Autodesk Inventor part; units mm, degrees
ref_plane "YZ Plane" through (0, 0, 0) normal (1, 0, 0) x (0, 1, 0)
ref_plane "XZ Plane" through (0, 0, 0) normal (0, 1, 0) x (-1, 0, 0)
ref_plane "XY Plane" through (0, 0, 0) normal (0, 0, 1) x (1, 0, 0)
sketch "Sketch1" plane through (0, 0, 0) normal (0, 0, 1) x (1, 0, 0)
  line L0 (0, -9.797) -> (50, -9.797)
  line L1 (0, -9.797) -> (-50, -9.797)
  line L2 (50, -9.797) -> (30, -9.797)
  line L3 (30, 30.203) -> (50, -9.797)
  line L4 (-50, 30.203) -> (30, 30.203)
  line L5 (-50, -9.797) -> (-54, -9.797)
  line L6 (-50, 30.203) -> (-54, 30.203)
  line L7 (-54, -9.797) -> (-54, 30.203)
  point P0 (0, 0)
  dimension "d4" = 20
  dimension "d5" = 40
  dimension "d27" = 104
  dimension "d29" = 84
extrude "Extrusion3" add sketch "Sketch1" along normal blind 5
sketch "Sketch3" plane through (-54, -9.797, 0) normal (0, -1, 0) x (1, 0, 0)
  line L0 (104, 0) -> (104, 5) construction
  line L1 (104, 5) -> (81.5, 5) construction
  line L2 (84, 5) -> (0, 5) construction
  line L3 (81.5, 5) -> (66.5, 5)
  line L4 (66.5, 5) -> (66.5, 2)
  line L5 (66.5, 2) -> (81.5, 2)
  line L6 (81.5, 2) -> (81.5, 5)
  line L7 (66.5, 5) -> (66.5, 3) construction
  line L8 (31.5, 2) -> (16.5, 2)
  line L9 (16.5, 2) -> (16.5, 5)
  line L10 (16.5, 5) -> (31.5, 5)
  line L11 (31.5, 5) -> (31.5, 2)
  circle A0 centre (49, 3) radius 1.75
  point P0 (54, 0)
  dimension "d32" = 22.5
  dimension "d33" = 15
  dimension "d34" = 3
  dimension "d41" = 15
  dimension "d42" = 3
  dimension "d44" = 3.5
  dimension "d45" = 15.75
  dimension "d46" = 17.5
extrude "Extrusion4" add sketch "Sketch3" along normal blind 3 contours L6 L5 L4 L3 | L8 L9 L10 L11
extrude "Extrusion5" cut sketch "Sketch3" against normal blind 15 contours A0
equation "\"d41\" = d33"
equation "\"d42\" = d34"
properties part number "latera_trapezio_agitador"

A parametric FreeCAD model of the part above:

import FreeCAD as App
import Part
import Sketcher

doc = App.newDocument("Part")
body = doc.addObject("PartDesign::Body", "Body")

# Sketch on XY plane
sketch1 = body.newObject("Sketcher::SketchObject", "Sketch")
sketch1.AttachmentSupport = (doc.getObject("XY_Plane"), [""])
sketch1.MapMode = "FlatFace"
sketch1.addGeometry(Part.LineSegment(App.Vector(-54, -10, 0), App.Vector(50, -10, 0)), False)
sketch1.addGeometry(Part.LineSegment(App.Vector(50, -10, 0), App.Vector(30, 30, 0)), False)
sketch1.addGeometry(Part.LineSegment(App.Vector(30, 30, 0), App.Vector(-54, 30, 0)), False)
sketch1.addGeometry(Part.LineSegment(App.Vector(-54, 30, 0), App.Vector(-54, -10, 0)), False)
sketch1.addConstraint(Sketcher.Constraint("Coincident", 0, 2, 1, 1))
sketch1.addConstraint(Sketcher.Constraint("Coincident", 1, 2, 2, 1))
sketch1.addConstraint(Sketcher.Constraint("Coincident", 2, 2, 3, 1))
sketch1.addConstraint(Sketcher.Constraint("Coincident", 3, 2, 0, 1))
sketch1.addConstraint(Sketcher.Constraint("Horizontal", 0))
sketch1.addConstraint(Sketcher.Constraint("Horizontal", 2))
sketch1.addConstraint(Sketcher.Constraint("Vertical", 3))
sketch1.addConstraint(Sketcher.Constraint("DistanceX", 0, 1, 0, 2, 104.0))
sketch1.addConstraint(Sketcher.Constraint("DistanceX", 2, 2, 2, 1, 84.0))
sketch1.addConstraint(Sketcher.Constraint("DistanceY", 3, 2, 3, 1, 40.0))
sketch1.addConstraint(Sketcher.Constraint("DistanceX", -1, 1, 0, 2, 50.0))
sketch1.addConstraint(Sketcher.Constraint("DistanceY", 0, 2, -1, 1, 9.797))
pad1 = body.newObject("PartDesign::Pad", "Pad")
pad1.Profile = sketch1
pad1.Length = 5

# Sketch on XZ plane
sketch2 = body.newObject("Sketcher::SketchObject", "Sketch001")
sketch2.AttachmentSupport = (doc.getObject("XZ_Plane"), [""])
sketch2.MapMode = "FlatFace"
sketch2.AttachmentOffset = App.Placement(App.Vector(0, 0, 9.797), App.Rotation())
sketch2.addGeometry(Part.LineSegment(App.Vector(27.5, 2, 0), App.Vector(27.5, 5, 0)), False)
sketch2.addGeometry(Part.LineSegment(App.Vector(27.5, 5, 0), App.Vector(12.5, 5, 0)), False)
sketch2.addGeometry(Part.LineSegment(App.Vector(12.5, 5, 0), App.Vector(12.5, 2, 0)), False)
sketch2.addGeometry(Part.LineSegment(App.Vector(12.5, 2, 0), App.Vector(27.5, 2, 0)), False)
sketch2.addGeometry(Part.LineSegment(App.Vector(-37.5, 2, 0), App.Vector(-22.5, 2, 0)), False)
sketch2.addGeometry(Part.LineSegment(App.Vector(-22.5, 2, 0), App.Vector(-22.5, 5, 0)), False)
sketch2.addGeometry(Part.LineSegment(App.Vector(-22.5, 5, 0), App.Vector(-37.5, 5, 0)), False)
sketch2.addGeometry(Part.LineSegment(App.Vector(-37.5, 5, 0), App.Vector(-37.5, 2, 0)), False)
sketch2.addConstraint(Sketcher.Constraint("Coincident", 0, 2, 1, 1))
sketch2.addConstraint(Sketcher.Constraint("Coincident", 1, 2, 2, 1))
sketch2.addConstraint(Sketcher.Constraint("Coincident", 2, 2, 3, 1))
sketch2.addConstraint(Sketcher.Constraint("Coincident", 3, 2, 0, 1))
sketch2.addConstraint(Sketcher.Constraint("Coincident", 4, 2, 5, 1))
sketch2.addConstraint(Sketcher.Constraint("Coincident", 5, 2, 6, 1))
sketch2.addConstraint(Sketcher.Constraint("Coincident", 6, 2, 7, 1))
sketch2.addConstraint(Sketcher.Constraint("Coincident", 7, 2, 4, 1))
sketch2.addConstraint(Sketcher.Constraint("Vertical", 0))
sketch2.addConstraint(Sketcher.Constraint("Horizontal", 1))
sketch2.addConstraint(Sketcher.Constraint("Vertical", 2))
sketch2.addConstraint(Sketcher.Constraint("Horizontal", 3))
sketch2.addConstraint(Sketcher.Constraint("Horizontal", 4))
sketch2.addConstraint(Sketcher.Constraint("Vertical", 5))
sketch2.addConstraint(Sketcher.Constraint("Horizontal", 6))
sketch2.addConstraint(Sketcher.Constraint("Vertical", 7))
sketch2.addConstraint(Sketcher.Constraint("Horizontal", 3, 2, 4, 2))
sketch2.addConstraint(Sketcher.Constraint("Horizontal", 1, 2, 5, 2))
sketch2.addConstraint(Sketcher.Constraint("Equal", 3, 4))
sketch2.addConstraint(Sketcher.Constraint("DistanceX", 1, 2, 1, 1, 15.0))
sketch2.addConstraint(Sketcher.Constraint("DistanceY", 0, 1, 0, 2, 3.0))
sketch2.addConstraint(Sketcher.Constraint("DistanceX", 4, 2, -1, 1, 22.5))
sketch2.addConstraint(Sketcher.Constraint("DistanceY", -1, 1, 0, 2, 5.0))
sketch2.addConstraint(Sketcher.Constraint("DistanceX", 4, 2, 2, 2, 35.0))
pad2 = body.newObject("PartDesign::Pad", "Pad001")
pad2.Profile = sketch2
pad2.Length = 3

# Sketch on XZ plane
sketch3 = body.newObject("Sketcher::SketchObject", "Sketch002")
sketch3.AttachmentSupport = (doc.getObject("XZ_Plane"), [""])
sketch3.MapMode = "FlatFace"
sketch3.AttachmentOffset = App.Placement(App.Vector(0, 0, 9.797), App.Rotation())
sketch3.addGeometry(Part.Circle(App.Vector(-5, 3, 0), App.Vector(0, 0, 1), 1.8), False)
sketch3.addConstraint(Sketcher.Constraint("Diameter", 0, 3.5))
sketch3.addConstraint(Sketcher.Constraint("DistanceY", -1, 1, 0, 3, 3.0))
sketch3.addConstraint(Sketcher.Constraint("DistanceX", 0, 3, -1, 1, 5.0))
pocket1 = body.newObject("PartDesign::Pocket", "Pocket")
pocket1.Profile = sketch3
pocket1.Length = 15

doc.recompute()
